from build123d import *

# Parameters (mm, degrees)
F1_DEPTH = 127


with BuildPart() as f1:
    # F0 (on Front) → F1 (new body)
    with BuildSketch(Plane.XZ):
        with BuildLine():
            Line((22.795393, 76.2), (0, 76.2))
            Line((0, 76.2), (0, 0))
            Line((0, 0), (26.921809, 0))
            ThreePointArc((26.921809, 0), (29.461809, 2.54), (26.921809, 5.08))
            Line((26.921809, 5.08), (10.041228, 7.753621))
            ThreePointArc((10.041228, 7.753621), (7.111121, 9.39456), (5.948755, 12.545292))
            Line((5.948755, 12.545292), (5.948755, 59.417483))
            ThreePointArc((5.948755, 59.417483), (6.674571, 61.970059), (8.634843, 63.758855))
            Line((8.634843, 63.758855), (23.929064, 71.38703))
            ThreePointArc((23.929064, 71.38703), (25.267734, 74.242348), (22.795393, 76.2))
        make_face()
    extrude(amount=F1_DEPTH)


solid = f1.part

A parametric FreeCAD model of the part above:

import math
import FreeCAD as App
import Part
import Sketcher
Q = App.Units.Quantity

doc = App.newDocument("Part")
params = doc.addObject("Spreadsheet::Sheet", "Params")
for row, (alias, value) in enumerate([
    ("sketch1_radius", "0.1 in"),
    ("sketch1_height", "3 in"),
    ("sketch1_radius2", "0.191 in"),
    ("pad1_length", "5 in"),
], start=1):
    params.set(f"A{row}", alias)
    params.set(f"B{row}", "=" + value)
    params.setAlias(f"B{row}", alias)

body = doc.addObject("PartDesign::Body", "Body")

# Sketch on XZ plane
sketch1 = body.newObject("Sketcher::SketchObject", "Sketch")
sketch1.AttachmentSupport = (doc.getObject("XZ_Plane"), [""])
sketch1.MapMode = "FlatFace"
sketch1.addGeometry([
    Part.LineSegment(App.Vector(22.8, 76.2, 0), App.Vector(0, 76.2, 0)),  # 0
    Part.LineSegment(App.Vector(0, 76.2, 0), App.Vector(0, 0, 0)),  # 1
    Part.LineSegment(App.Vector(0, 0, 0), App.Vector(26.9, 0, 0)),  # 2
    Part.ArcOfCircle(Part.Circle(App.Vector(26.9, 2.5, 0), App.Vector(0, 0, 1), 2.5), math.radians(-90), math.radians(90)),  # 3
    Part.LineSegment(App.Vector(26.9, 5.1, 0), App.Vector(10, 7.8, 0)),  # 4
    Part.ArcOfCircle(Part.Circle(App.Vector(10.8, 12.5, 0), App.Vector(0, 0, 1), 4.9), math.radians(180), math.radians(261)),  # 5
    Part.LineSegment(App.Vector(5.9, 12.5, 0), App.Vector(5.9, 59.4, 0)),  # 6
    Part.ArcOfCircle(Part.Circle(App.Vector(10.8, 59.4, 0), App.Vector(0, 0, 1), 4.9), math.radians(117), math.radians(180)),  # 7
    Part.LineSegment(App.Vector(8.6, 63.8, 0), App.Vector(23.9, 71.4, 0)),  # 8
    Part.ArcOfCircle(Part.Circle(App.Vector(22.8, 73.7, 0), App.Vector(0, 0, 1), 2.5), math.radians(-63), math.radians(90)),  # 9
], False)
sketch1.addConstraint([
    Sketcher.Constraint("Coincident", 0, 2, 1, 1),
    Sketcher.Constraint("Coincident", 1, 2, 2, 1),
    Sketcher.Constraint("Tangent", 2, 2, 3, 1),
    Sketcher.Constraint("Coincident", 3, 2, 4, 1),
    Sketcher.Constraint("Tangent", 4, 2, 5, 2),
    Sketcher.Constraint("Tangent", 5, 1, 6, 1),
    Sketcher.Constraint("Tangent", 6, 2, 7, 2),
    Sketcher.Constraint("Tangent", 7, 1, 8, 1),
    Sketcher.Constraint("Tangent", 8, 2, 9, 1),
    Sketcher.Constraint("Tangent", 9, 2, 0, 1),
    Sketcher.Constraint("Horizontal", 0),
    Sketcher.Constraint("Vertical", 1),
    Sketcher.Constraint("Horizontal", 2),
    Sketcher.Constraint("Vertical", 6),
    Sketcher.Constraint("Coincident", 1, 2, -1, 1),
    Sketcher.Constraint("Equal", 5, 7),
    Sketcher.Constraint("Equal", 3, 9),
    Sketcher.Constraint("Vertical", 2, 2, 3, 2),
    Sketcher.Constraint("Equal", 4, 8),
    Sketcher.Constraint("Radius", 3, Q("0.1 in")),
    Sketcher.Constraint("DistanceY", 1, 2, 1, 1, Q("3 in")),
    Sketcher.Constraint("Angle", 4, Q("171.000001 deg")),
    Sketcher.Constraint("Radius", 5, Q("0.191 in")),
    Sketcher.Constraint("Distance", 4, 17.091),
    Sketcher.Constraint("DistanceX", 2, 1, 2, 2, 26.921809),
    Sketcher.Constraint("DistanceY", 6, 1, 6, 2, 46.872191),
])
sketch1.setExpression("Constraints[19]", "Params.sketch1_radius")
sketch1.setExpression("Constraints[20]", "Params.sketch1_height")
sketch1.setExpression("Constraints[22]", "Params.sketch1_radius2")
pad1 = body.newObject("PartDesign::Pad", "Pad")
pad1.Profile = sketch1
pad1.setExpression("Length", "Params.pad1_length")

doc.recompute()
